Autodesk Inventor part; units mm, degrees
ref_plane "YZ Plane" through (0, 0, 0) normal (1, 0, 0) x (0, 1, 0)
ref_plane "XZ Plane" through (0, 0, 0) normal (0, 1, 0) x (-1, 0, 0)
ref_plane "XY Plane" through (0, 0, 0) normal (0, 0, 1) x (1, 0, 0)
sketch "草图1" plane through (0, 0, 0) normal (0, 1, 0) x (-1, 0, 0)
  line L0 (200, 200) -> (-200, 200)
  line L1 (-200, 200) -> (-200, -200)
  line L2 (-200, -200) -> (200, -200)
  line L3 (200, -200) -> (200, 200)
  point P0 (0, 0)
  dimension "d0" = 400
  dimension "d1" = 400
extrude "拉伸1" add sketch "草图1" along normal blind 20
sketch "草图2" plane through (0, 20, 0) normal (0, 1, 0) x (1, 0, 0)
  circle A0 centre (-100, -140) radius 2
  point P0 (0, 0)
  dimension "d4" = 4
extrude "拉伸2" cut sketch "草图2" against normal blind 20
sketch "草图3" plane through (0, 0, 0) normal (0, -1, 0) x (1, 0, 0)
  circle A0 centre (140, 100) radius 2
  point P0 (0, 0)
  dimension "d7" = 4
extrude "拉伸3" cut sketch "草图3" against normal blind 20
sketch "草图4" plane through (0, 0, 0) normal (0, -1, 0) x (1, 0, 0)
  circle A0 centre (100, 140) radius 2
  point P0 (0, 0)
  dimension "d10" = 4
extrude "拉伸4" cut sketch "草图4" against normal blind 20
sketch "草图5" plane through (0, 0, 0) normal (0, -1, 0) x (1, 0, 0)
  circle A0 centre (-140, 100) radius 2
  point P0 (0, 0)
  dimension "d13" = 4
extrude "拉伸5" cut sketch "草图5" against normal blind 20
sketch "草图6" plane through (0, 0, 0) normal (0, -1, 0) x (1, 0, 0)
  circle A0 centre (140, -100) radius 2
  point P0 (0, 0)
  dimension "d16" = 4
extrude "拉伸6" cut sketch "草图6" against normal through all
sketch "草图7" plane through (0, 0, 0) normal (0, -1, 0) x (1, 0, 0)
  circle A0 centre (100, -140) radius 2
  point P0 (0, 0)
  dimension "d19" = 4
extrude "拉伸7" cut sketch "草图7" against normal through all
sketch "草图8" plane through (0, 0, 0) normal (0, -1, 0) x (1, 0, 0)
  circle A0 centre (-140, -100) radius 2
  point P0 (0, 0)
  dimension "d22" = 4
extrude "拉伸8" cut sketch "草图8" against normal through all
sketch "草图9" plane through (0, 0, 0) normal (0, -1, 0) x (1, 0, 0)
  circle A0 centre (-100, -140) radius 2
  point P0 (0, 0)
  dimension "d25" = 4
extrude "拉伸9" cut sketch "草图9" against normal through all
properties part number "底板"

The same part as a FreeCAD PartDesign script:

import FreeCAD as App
import Part
import Sketcher
from FreeCAD import Vector

doc = App.newDocument("Part")
body = doc.addObject("PartDesign::Body", "Body")

# Sketch on XZ plane
sketch1 = body.newObject("Sketcher::SketchObject", "Sketch")
sketch1.AttachmentSupport = (doc.getObject("XZ_Plane"), [""])
sketch1.MapMode = "FlatFace"
sketch1.addGeometry([
    Part.LineSegment(Vector(-200, -200, 0), Vector(-200, 200, 0)),
    Part.LineSegment(Vector(-200, 200, 0), Vector(200, 200, 0)),
    Part.LineSegment(Vector(200, 200, 0), Vector(200, -200, 0)),
    Part.LineSegment(Vector(200, -200, 0), Vector(-200, -200, 0)),
], False)
sketch1.addConstraint([
    Sketcher.Constraint("Coincident", 0, 2, 1, 1),
    Sketcher.Constraint("Coincident", 1, 2, 2, 1),
    Sketcher.Constraint("Coincident", 2, 2, 3, 1),
    Sketcher.Constraint("Coincident", 3, 2, 0, 1),
    Sketcher.Constraint("Vertical", 0),
    Sketcher.Constraint("Horizontal", 1),
    Sketcher.Constraint("Vertical", 2),
    Sketcher.Constraint("Horizontal", 3),
    Sketcher.Constraint("Symmetric", 0, 2, 2, 2, -1, 1),
    Sketcher.Constraint("Equal", 3, 0),
    Sketcher.Constraint("DistanceX", 1, 1, 1, 2, 400.0),
])
pad1 = body.newObject("PartDesign::Pad", "Pad")
pad1.Profile = sketch1
pad1.Length = 20
pad1.Reversed = True

# Sketch on XZ plane
sketch2 = body.newObject("Sketcher::SketchObject", "Sketch001")
sketch2.AttachmentSupport = (doc.getObject("XZ_Plane"), [""])
sketch2.MapMode = "FlatFace"
sketch2.AttachmentOffset = App.Placement(Vector(0, 0, -20), App.Rotation())
sketch2.addGeometry(Part.Circle(Vector(-100, 140, 0), Vector(0, 0, 1), 2), False)
sketch2.addConstraint([
    Sketcher.Constraint("Diameter", 0, 4.0),
    Sketcher.Constraint("DistanceX", 0, 3, -1, 1, 100.0),
    Sketcher.Constraint("DistanceY", -1, 1, 0, 3, 140.0),
])
pocket1 = body.newObject("PartDesign::Pocket", "Pocket")
pocket1.Profile = sketch2
pocket1.Length = 20
pocket1.Reversed = True

# Sketch on XZ plane
sketch3 = body.newObject("Sketcher::SketchObject", "Sketch002")
sketch3.AttachmentSupport = (doc.getObject("XZ_Plane"), [""])
sketch3.MapMode = "FlatFace"
sketch3.addGeometry(Part.Circle(Vector(140, 100, 0), Vector(0, 0, 1), 2), False)
sketch3.addConstraint([
    Sketcher.Constraint("Diameter", 0, 4.0),
    Sketcher.Constraint("DistanceX", -1, 1, 0, 3, 140.0),
    Sketcher.Constraint("DistanceY", -1, 1, 0, 3, 100.0),
])
pocket2 = body.newObject("PartDesign::Pocket", "Pocket001")
pocket2.Profile = sketch3
pocket2.Length = 20

# Sketch on XZ plane
sketch4 = body.newObject("Sketcher::SketchObject", "Sketch003")
sketch4.AttachmentSupport = (doc.getObject("XZ_Plane"), [""])
sketch4.MapMode = "FlatFace"
sketch4.addGeometry(Part.Circle(Vector(100, 140, 0), Vector(0, 0, 1), 2), False)
sketch4.addConstraint([
    Sketcher.Constraint("Diameter", 0, 4.0),
    Sketcher.Constraint("DistanceX", -1, 1, 0, 3, 100.0),
    Sketcher.Constraint("DistanceY", -1, 1, 0, 3, 140.0),
])
pocket3 = body.newObject("PartDesign::Pocket", "Pocket002")
pocket3.Profile = sketch4
pocket3.Length = 20

# Sketch on XZ plane
sketch5 = body.newObject("Sketcher::SketchObject", "Sketch004")
sketch5.AttachmentSupport = (doc.getObject("XZ_Plane"), [""])
sketch5.MapMode = "FlatFace"
sketch5.addGeometry(Part.Circle(Vector(-140, 100, 0), Vector(0, 0, 1), 2), False)
sketch5.addConstraint([
    Sketcher.Constraint("Diameter", 0, 4.0),
    Sketcher.Constraint("DistanceX", 0, 3, -1, 1, 140.0),
    Sketcher.Constraint("DistanceY", -1, 1, 0, 3, 100.0),
])
pocket4 = body.newObject("PartDesign::Pocket", "Pocket003")
pocket4.Profile = sketch5
pocket4.Length = 20

# Sketch on XZ plane
sketch6 = body.newObject("Sketcher::SketchObject", "Sketch005")
sketch6.AttachmentSupport = (doc.getObject("XZ_Plane"), [""])
sketch6.MapMode = "FlatFace"
sketch6.addGeometry(Part.Circle(Vector(140, -100, 0), Vector(0, 0, 1), 2), False)
sketch6.addConstraint([
    Sketcher.Constraint("Diameter", 0, 4.0),
    Sketcher.Constraint("DistanceX", -1, 1, 0, 3, 140.0),
    Sketcher.Constraint("DistanceY", 0, 3, -1, 1, 100.0),
])
pocket5 = body.newObject("PartDesign::Pocket", "Pocket004")
pocket5.Profile = sketch6
pocket5.Type = "ThroughAll"

# Sketch on XZ plane
sketch7 = body.newObject("Sketcher::SketchObject", "Sketch006")
sketch7.AttachmentSupport = (doc.getObject("XZ_Plane"), [""])
sketch7.MapMode = "FlatFace"
sketch7.addGeometry(Part.Circle(Vector(100, -140, 0), Vector(0, 0, 1), 2), False)
sketch7.addConstraint([
    Sketcher.Constraint("Diameter", 0, 4.0),
    Sketcher.Constraint("DistanceX", -1, 1, 0, 3, 100.0),
    Sketcher.Constraint("DistanceY", 0, 3, -1, 1, 140.0),
])
pocket6 = body.newObject("PartDesign::Pocket", "Pocket005")
pocket6.Profile = sketch7
pocket6.Type = "ThroughAll"

# Sketch on XZ plane
sketch8 = body.newObject("Sketcher::SketchObject", "Sketch007")
sketch8.AttachmentSupport = (doc.getObject("XZ_Plane"), [""])
sketch8.MapMode = "FlatFace"
sketch8.addGeometry(Part.Circle(Vector(-140, -100, 0), Vector(0, 0, 1), 2), False)
sketch8.addConstraint([
    Sketcher.Constraint("Diameter", 0, 4.0),
    Sketcher.Constraint("DistanceX", 0, 3, -1, 1, 140.0),
    Sketcher.Constraint("DistanceY", 0, 3, -1, 1, 100.0),
])
pocket7 = body.newObject("PartDesign::Pocket", "Pocket006")
pocket7.Profile = sketch8
pocket7.Type = "ThroughAll"

# Sketch on XZ plane
sketch9 = body.newObject("Sketcher::SketchObject", "Sketch008")
sketch9.AttachmentSupport = (doc.getObject("XZ_Plane"), [""])
sketch9.MapMode = "FlatFace"
sketch9.addGeometry(Part.Circle(Vector(-100, -140, 0), Vector(0, 0, 1), 2), False)
sketch9.addConstraint([
    Sketcher.Constraint("Diameter", 0, 4.0),
    Sketcher.Constraint("DistanceX", 0, 3, -1, 1, 100.0),
    Sketcher.Constraint("DistanceY", 0, 3, -1, 1, 140.0),
])
pocket8 = body.newObject("PartDesign::Pocket", "Pocket007")
pocket8.Profile = sketch9
pocket8.Type = "ThroughAll"

doc.recompute()
